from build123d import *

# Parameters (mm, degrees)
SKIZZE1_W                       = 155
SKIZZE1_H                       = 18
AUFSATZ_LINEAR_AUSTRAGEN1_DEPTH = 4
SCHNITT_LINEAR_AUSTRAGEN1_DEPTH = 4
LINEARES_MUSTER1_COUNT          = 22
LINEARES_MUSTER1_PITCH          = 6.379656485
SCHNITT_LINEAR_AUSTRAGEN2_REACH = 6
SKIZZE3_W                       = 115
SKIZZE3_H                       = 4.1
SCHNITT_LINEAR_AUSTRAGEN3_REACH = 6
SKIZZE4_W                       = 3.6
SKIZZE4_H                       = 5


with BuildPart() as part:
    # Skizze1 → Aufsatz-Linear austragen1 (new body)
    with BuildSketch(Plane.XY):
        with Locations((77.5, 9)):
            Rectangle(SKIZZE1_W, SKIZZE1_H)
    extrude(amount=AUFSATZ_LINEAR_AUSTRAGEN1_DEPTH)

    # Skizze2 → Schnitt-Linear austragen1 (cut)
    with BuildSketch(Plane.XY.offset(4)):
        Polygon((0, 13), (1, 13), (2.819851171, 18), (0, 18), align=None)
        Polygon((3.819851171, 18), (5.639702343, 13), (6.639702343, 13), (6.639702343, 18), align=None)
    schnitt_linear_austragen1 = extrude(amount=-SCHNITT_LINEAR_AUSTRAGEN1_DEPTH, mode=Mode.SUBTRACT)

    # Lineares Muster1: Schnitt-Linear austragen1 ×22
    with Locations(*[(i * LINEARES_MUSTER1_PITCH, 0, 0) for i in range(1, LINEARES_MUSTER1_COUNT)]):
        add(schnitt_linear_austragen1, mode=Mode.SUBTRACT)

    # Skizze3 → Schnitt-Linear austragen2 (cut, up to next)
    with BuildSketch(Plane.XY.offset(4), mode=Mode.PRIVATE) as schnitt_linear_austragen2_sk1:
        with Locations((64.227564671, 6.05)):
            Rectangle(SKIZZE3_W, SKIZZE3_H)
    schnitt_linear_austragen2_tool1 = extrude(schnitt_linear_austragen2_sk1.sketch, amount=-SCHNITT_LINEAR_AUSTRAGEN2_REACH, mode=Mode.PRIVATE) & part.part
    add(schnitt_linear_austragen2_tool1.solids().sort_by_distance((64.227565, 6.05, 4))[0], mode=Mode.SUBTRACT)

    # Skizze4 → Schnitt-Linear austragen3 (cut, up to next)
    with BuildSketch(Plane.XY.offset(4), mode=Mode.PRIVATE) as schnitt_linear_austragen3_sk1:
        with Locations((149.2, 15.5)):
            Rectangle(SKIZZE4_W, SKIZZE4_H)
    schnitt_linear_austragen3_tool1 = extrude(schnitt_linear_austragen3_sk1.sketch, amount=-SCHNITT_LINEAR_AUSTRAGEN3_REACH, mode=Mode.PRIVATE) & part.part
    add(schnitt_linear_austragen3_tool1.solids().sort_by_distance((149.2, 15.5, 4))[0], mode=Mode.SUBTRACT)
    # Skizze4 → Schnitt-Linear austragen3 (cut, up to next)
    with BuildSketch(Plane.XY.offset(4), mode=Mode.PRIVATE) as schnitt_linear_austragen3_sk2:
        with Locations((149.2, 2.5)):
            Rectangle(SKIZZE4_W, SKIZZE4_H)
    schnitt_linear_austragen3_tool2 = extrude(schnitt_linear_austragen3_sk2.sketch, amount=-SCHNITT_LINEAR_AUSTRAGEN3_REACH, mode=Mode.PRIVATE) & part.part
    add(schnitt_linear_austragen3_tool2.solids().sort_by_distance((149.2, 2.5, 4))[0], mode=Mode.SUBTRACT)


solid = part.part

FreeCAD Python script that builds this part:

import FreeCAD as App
import Part
import Sketcher
Q = App.Units.Quantity


def add_polygon(sketch, points):
    """Adds a closed chain of lines whose ends are joined by coincident constraints."""
    first, n = sketch.GeometryCount, len(points)
    for a, b in zip(points, points[1:] + points[:1]):
        sketch.addGeometry(Part.LineSegment(App.Vector(*a, 0), App.Vector(*b, 0)), False)
    for i in range(n):
        sketch.addConstraint(Sketcher.Constraint("Coincident", first + i, 2, first + (i + 1) % n, 1))

doc = App.newDocument("Part")
body = doc.addObject("PartDesign::Body", "Body")

sketch1 = doc.addObject("Sketcher::SketchObject", "Sketch")
body.addObject(sketch1)
sketch1.AttachmentSupport = (doc.XY_Plane, [""])
sketch1.MapMode = "FlatFace"
add_polygon(sketch1, [(0, 18), (0, 0), (155, 0), (155, 18)])
sketch1.addConstraint([
    Sketcher.Constraint("Vertical", 0),
    Sketcher.Constraint("Horizontal", 1),
    Sketcher.Constraint("Vertical", 2),
    Sketcher.Constraint("Horizontal", 3),
    Sketcher.Constraint("Coincident", 0, 2, -1, 1),
    Sketcher.Constraint("DistanceX", 1, 1, 1, 2, 155.0),
    Sketcher.Constraint("DistanceY", 0, 2, 0, 1, 18.0),
])
pad1 = doc.addObject("PartDesign::Pad", "Pad")
body.addObject(pad1)
pad1.Profile = sketch1
pad1.Length = 4

sketch2 = doc.addObject("Sketcher::SketchObject", "Sketch001")
body.addObject(sketch2)
sketch2.AttachmentSupport = (doc.XY_Plane, [""])
sketch2.MapMode = "FlatFace"
sketch2.AttachmentOffset = App.Placement(App.Vector(0, 0, 4), App.Rotation())
add_polygon(sketch2, [(0, 13), (1, 13), (2.819851, 18), (0, 18)])
add_polygon(sketch2, [(3.819851, 18), (5.639702, 13), (6.639702, 13), (6.639702, 18)])
sketch2.addConstraint([
    Sketcher.Constraint("Horizontal", 0),
    Sketcher.Constraint("Horizontal", 2),
    Sketcher.Constraint("Vertical", 3),
    Sketcher.Constraint("Horizontal", 5),
    Sketcher.Constraint("Vertical", 6),
    Sketcher.Constraint("Horizontal", 7),
    Sketcher.Constraint("PointOnObject", 2, 2, -2),
    Sketcher.Constraint("Horizontal", 3, 2, 4, 2),
    Sketcher.Constraint("Horizontal", 2, 2, 6, 2),
    Sketcher.Constraint("Equal", 0, 5),
    Sketcher.Constraint("Equal", 2, 7),
    Sketcher.Constraint("DistanceX", 0, 1, 0, 2, 1.0),
    Sketcher.Constraint("DistanceY", 3, 2, 3, 1, 5.0),
    Sketcher.Constraint("Angle", 1, Q("70 deg")),
    Sketcher.Constraint("DistanceY", -1, 1, 0, 2, 13.0),
    Sketcher.Constraint("DistanceX", 1, 2, 7, 2, 1.0),
])
pocket1 = doc.addObject("PartDesign::Pocket", "Pocket")
body.addObject(pocket1)
pocket1.Profile = sketch2
pocket1.Length = 4
doc.recompute()

linearpattern = doc.addObject("PartDesign::LinearPattern", "LinearPattern")
body.addObject(linearpattern)
linearpattern.Originals = [pocket1]
linearpattern.Direction = (doc.X_Axis, [""])
linearpattern.Mode = "offset"
linearpattern.Offset = 6.379656
linearpattern.Occurrences = 22
body.Tip = linearpattern

sketch3 = doc.addObject("Sketcher::SketchObject", "Sketch002")
body.addObject(sketch3)
sketch3.AttachmentSupport = (doc.XY_Plane, [""])
sketch3.MapMode = "FlatFace"
sketch3.AttachmentOffset = App.Placement(App.Vector(0, 0, 4), App.Rotation())
add_polygon(sketch3, [(6.727565, 8.1), (6.727565, 4), (121.727565, 4), (121.727565, 8.1)])
sketch3.addConstraint([
    Sketcher.Constraint("Vertical", 0),
    Sketcher.Constraint("Horizontal", 1),
    Sketcher.Constraint("Vertical", 2),
    Sketcher.Constraint("Horizontal", 3),
    Sketcher.Constraint("DistanceX", 1, 1, 1, 2, 115.0),
    Sketcher.Constraint("DistanceY", 0, 2, 0, 1, 4.1),
    Sketcher.Constraint("DistanceY", -1, 1, 0, 2, 4.0),
    Sketcher.Constraint("DistanceX", -1, 1, 0, 2, 6.727565),
])
pocket2 = doc.addObject("PartDesign::Pocket", "Pocket001")
body.addObject(pocket2)
pocket2.Profile = sketch3
pocket2.Type = "UpToFirst"

sketch4 = doc.addObject("Sketcher::SketchObject", "Sketch003")
body.addObject(sketch4)
sketch4.AttachmentSupport = (doc.XY_Plane, [""])
sketch4.MapMode = "FlatFace"
sketch4.AttachmentOffset = App.Placement(App.Vector(0, 0, 4), App.Rotation())
add_polygon(sketch4, [(147.4, 18), (147.4, 13), (151, 13), (151, 18)])
sketch4.addConstraint([
    Sketcher.Constraint("Vertical", 0),
    Sketcher.Constraint("Horizontal", 1),
    Sketcher.Constraint("Vertical", 2),
    Sketcher.Constraint("Horizontal", 3),
    Sketcher.Constraint("DistanceY", 0, 2, 0, 1, 5.0),
    Sketcher.Constraint("DistanceX", 1, 1, 1, 2, 3.6),
    Sketcher.Constraint("DistanceY", -1, 1, 0, 2, 13.0),
    Sketcher.Constraint("DistanceX", -1, 1, 1, 2, 151.0),
])
pocket3 = doc.addObject("PartDesign::Pocket", "Pocket002")
body.addObject(pocket3)
pocket3.Profile = sketch4
pocket3.Type = "UpToFirst"

sketch5 = doc.addObject("Sketcher::SketchObject", "Sketch004")
body.addObject(sketch5)
sketch5.AttachmentSupport = (doc.XY_Plane, [""])
sketch5.MapMode = "FlatFace"
sketch5.AttachmentOffset = App.Placement(App.Vector(0, 0, 4), App.Rotation())
add_polygon(sketch5, [(147.4, 5), (147.4, 0), (151, 0), (151, 5)])
sketch5.addConstraint([
    Sketcher.Constraint("Vertical", 0),
    Sketcher.Constraint("Horizontal", 1),
    Sketcher.Constraint("Vertical", 2),
    Sketcher.Constraint("Horizontal", 3),
    Sketcher.Constraint("PointOnObject", 0, 2, -1),
    Sketcher.Constraint("DistanceY", 0, 2, 0, 1, 5.0),
    Sketcher.Constraint("DistanceX", 1, 1, 1, 2, 3.6),
    Sketcher.Constraint("DistanceX", -1, 1, 1, 2, 151.0),
])
pocket4 = doc.addObject("PartDesign::Pocket", "Pocket003")
body.addObject(pocket4)
pocket4.Profile = sketch5
pocket4.Type = "UpToFirst"

doc.recompute()
